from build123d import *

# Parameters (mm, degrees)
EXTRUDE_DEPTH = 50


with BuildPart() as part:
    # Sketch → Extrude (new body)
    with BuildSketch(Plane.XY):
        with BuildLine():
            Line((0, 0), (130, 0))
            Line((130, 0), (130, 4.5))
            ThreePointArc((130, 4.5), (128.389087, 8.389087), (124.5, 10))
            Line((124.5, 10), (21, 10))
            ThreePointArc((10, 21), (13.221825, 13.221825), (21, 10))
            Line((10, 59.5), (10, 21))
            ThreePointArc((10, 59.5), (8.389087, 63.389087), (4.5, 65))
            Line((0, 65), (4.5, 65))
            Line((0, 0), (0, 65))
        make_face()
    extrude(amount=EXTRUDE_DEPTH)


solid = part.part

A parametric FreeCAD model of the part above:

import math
import FreeCAD as App
import Part
import Sketcher

V = App.Vector

doc = App.newDocument("Part")
body = doc.addObject("PartDesign::Body", "Body")

# Sketch on XY plane
sketch1 = doc.addObject("Sketcher::SketchObject", "Sketch")
body.addObject(sketch1)
sketch1.AttachmentSupport = (doc.XY_Plane, [""])
sketch1.MapMode = "FlatFace"
sketch1.addGeometry([
    Part.LineSegment(V(0, 0, 0), V(130, 0, 0)),  # 0
    Part.LineSegment(V(130, 0, 0), V(130, 4.5, 0)),  # 1
    Part.ArcOfCircle(Part.Circle(V(124.5, 4.5, 0), V(0, 0, 1), 5.5), math.radians(0), math.radians(90)),  # 2
    Part.LineSegment(V(124.5, 10, 0), V(21, 10, 0)),  # 3
    Part.ArcOfCircle(Part.Circle(V(21, 21, 0), V(0, 0, 1), 11), math.radians(180), math.radians(270)),  # 4
    Part.LineSegment(V(10, 21, 0), V(10, 59.5, 0)),  # 5
    Part.ArcOfCircle(Part.Circle(V(4.5, 59.5, 0), V(0, 0, 1), 5.5), math.radians(0), math.radians(90)),  # 6
    Part.LineSegment(V(4.5, 65, 0), V(0, 65, 0)),  # 7
    Part.LineSegment(V(0, 65, 0), V(0, 0, 0)),  # 8
], False)
sketch1.addConstraint([
    Sketcher.Constraint("Coincident", 0, 2, 1, 1),
    Sketcher.Constraint("Tangent", 1, 2, 2, 1),
    Sketcher.Constraint("Tangent", 2, 2, 3, 1),
    Sketcher.Constraint("Tangent", 3, 2, 4, 2),
    Sketcher.Constraint("Tangent", 4, 1, 5, 1),
    Sketcher.Constraint("Tangent", 5, 2, 6, 1),
    Sketcher.Constraint("Tangent", 6, 2, 7, 1),
    Sketcher.Constraint("Coincident", 7, 2, 8, 1),
    Sketcher.Constraint("Coincident", 8, 2, 0, 1),
    Sketcher.Constraint("Horizontal", 0),
    Sketcher.Constraint("Vertical", 1),
    Sketcher.Constraint("Horizontal", 3),
    Sketcher.Constraint("Vertical", 5),
    Sketcher.Constraint("Horizontal", 7),
    Sketcher.Constraint("Vertical", 8),
    Sketcher.Constraint("Coincident", 8, 2, -1, 1),
    Sketcher.Constraint("Equal", 2, 6),
    Sketcher.Constraint("Equal", 7, 1),
    Sketcher.Constraint("Radius", 4, 10.999999),
    Sketcher.Constraint("Radius", 2, 5.500001),
    Sketcher.Constraint("DistanceX", 0, 1, 0, 2, 130.0),
    Sketcher.Constraint("DistanceY", 8, 2, 8, 1, 65.0),
    Sketcher.Constraint("DistanceX", 3, 2, 3, 1, 103.5),
])
pad1 = doc.addObject("PartDesign::Pad", "Pad")
body.addObject(pad1)
pad1.Profile = sketch1
pad1.Length = 50

doc.recompute()
